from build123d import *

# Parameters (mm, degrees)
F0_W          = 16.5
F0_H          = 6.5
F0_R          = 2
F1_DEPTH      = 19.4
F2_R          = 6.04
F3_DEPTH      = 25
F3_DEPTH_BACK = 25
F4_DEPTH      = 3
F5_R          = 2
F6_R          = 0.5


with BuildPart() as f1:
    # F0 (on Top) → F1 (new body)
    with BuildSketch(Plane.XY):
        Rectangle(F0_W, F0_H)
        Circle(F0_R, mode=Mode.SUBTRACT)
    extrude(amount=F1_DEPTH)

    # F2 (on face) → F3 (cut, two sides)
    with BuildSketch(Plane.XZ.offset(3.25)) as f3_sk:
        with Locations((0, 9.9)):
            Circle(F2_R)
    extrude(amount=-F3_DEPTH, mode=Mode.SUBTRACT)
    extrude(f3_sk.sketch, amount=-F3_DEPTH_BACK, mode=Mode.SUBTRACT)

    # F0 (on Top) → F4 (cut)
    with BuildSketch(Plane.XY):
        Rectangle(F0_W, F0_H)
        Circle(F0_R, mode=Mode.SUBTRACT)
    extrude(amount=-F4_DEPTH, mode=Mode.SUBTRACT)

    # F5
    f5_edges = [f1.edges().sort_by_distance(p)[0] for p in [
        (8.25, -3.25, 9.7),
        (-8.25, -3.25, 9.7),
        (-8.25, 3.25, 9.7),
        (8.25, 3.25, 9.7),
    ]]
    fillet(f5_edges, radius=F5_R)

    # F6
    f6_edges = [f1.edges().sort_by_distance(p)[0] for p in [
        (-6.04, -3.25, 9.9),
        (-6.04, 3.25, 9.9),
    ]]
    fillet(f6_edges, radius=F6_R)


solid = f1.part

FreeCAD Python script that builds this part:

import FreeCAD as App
import Part
import Sketcher
Q = App.Units.Quantity


def edges_at(feature, points):
    """Names of the edges that pass closest to the given points."""
    edges = feature.Shape.Edges
    near = lambda p: min(range(len(edges)), key=lambda i: edges[i].distToShape(Part.Vertex(*p))[0])
    return sorted({f"Edge{near(p) + 1}" for p in points})

doc = App.newDocument("Part")
params = doc.addObject("Spreadsheet::Sheet", "Params")
for row, (alias, value) in enumerate([
    ("sketch1_diameter", "4 mm"),
    ("sketch1_width", "16.5 mm"),
    ("sketch1_height", "6.5 mm"),
    ("pad1_length", "19.4 mm"),
    ("sketch2_diameter", "12.08 mm"),
    ("pocket1_length", "25 mm"),
    ("pocket2_length", "25 mm"),
    ("sketch3_diameter", "4 mm"),
    ("sketch3_width", "16.5 mm"),
    ("sketch3_height", "6.5 mm"),
    ("pocket3_length", "3 mm"),
    ("fillet_radius", "2 mm"),
    ("fillet2_radius", "0.5 mm"),
], start=1):
    params.set(f"A{row}", alias)
    params.set(f"B{row}", "=" + value)
    params.setAlias(f"B{row}", alias)

body = doc.addObject("PartDesign::Body", "Body")

sketch1 = body.newObject("Sketcher::SketchObject", "Sketch")
sketch1.AttachmentSupport = (doc.getObject("XY_Plane"), [""])
sketch1.MapMode = "FlatFace"
sketch1.addGeometry(Part.LineSegment(App.Vector(-8.2, 3.2, 0), App.Vector(-8.2, -3.2, 0)), False)
sketch1.addGeometry(Part.LineSegment(App.Vector(-8.2, -3.2, 0), App.Vector(8.2, -3.2, 0)), False)
sketch1.addGeometry(Part.LineSegment(App.Vector(8.2, -3.2, 0), App.Vector(8.2, 3.2, 0)), False)
sketch1.addGeometry(Part.LineSegment(App.Vector(8.2, 3.2, 0), App.Vector(-8.2, 3.2, 0)), False)
sketch1.addGeometry(Part.Circle(App.Vector(0, 0, 0), App.Vector(0, 0, 1), 2), False)
sketch1.addConstraint(Sketcher.Constraint("Coincident", 0, 2, 1, 1))
sketch1.addConstraint(Sketcher.Constraint("Coincident", 1, 2, 2, 1))
sketch1.addConstraint(Sketcher.Constraint("Coincident", 2, 2, 3, 1))
sketch1.addConstraint(Sketcher.Constraint("Coincident", 3, 2, 0, 1))
sketch1.addConstraint(Sketcher.Constraint("Vertical", 0))
sketch1.addConstraint(Sketcher.Constraint("Horizontal", 1))
sketch1.addConstraint(Sketcher.Constraint("Vertical", 2))
sketch1.addConstraint(Sketcher.Constraint("Horizontal", 3))
sketch1.addConstraint(Sketcher.Constraint("Coincident", 4, 3, -1, 1))
sketch1.addConstraint(Sketcher.Constraint("Symmetric", 0, 2, 2, 2, -1, 1))
sketch1.addConstraint(Sketcher.Constraint("Diameter", 4, Q("4 mm")))
sketch1.addConstraint(Sketcher.Constraint("DistanceX", 1, 1, 1, 2, Q("16.5 mm")))
sketch1.addConstraint(Sketcher.Constraint("DistanceY", 0, 2, 0, 1, Q("6.5 mm")))
sketch1.setExpression("Constraints[10]", "Params.sketch1_diameter")
sketch1.setExpression("Constraints[11]", "Params.sketch1_width")
sketch1.setExpression("Constraints[12]", "Params.sketch1_height")
pad1 = body.newObject("PartDesign::Pad", "Pad")
pad1.Profile = sketch1
pad1.setExpression("Length", "Params.pad1_length")

sketch2 = body.newObject("Sketcher::SketchObject", "Sketch001")
sketch2.AttachmentSupport = (doc.getObject("XZ_Plane"), [""])
sketch2.MapMode = "FlatFace"
sketch2.AttachmentOffset = App.Placement(App.Vector(0, 0, 3.25), App.Rotation())
sketch2.addGeometry(Part.Circle(App.Vector(0, 10, 0), App.Vector(0, 0, 1), 6), False)
sketch2.addConstraint(Sketcher.Constraint("PointOnObject", 0, 3, -2))
sketch2.addConstraint(Sketcher.Constraint("Diameter", 0, Q("12.08 mm")))
sketch2.addConstraint(Sketcher.Constraint("DistanceY", -1, 1, 0, 3, Q("9.9 mm")))
sketch2.setExpression("Constraints[1]", "Params.sketch2_diameter")
pocket1 = body.newObject("PartDesign::Pocket", "Pocket")
pocket1.Profile = sketch2
pocket1.setExpression("Length", "Params.pocket1_length")
pocket2 = body.newObject("PartDesign::Pocket", "Pocket001")
pocket2.Profile = sketch2
pocket2.setExpression("Length", "Params.pocket2_length")

sketch3 = body.newObject("Sketcher::SketchObject", "Sketch002")
sketch3.AttachmentSupport = (doc.getObject("XY_Plane"), [""])
sketch3.MapMode = "FlatFace"
sketch3.addGeometry(Part.LineSegment(App.Vector(-8.2, 3.2, 0), App.Vector(-8.2, -3.2, 0)), False)
sketch3.addGeometry(Part.LineSegment(App.Vector(-8.2, -3.2, 0), App.Vector(8.2, -3.2, 0)), False)
sketch3.addGeometry(Part.LineSegment(App.Vector(8.2, -3.2, 0), App.Vector(8.2, 3.2, 0)), False)
sketch3.addGeometry(Part.LineSegment(App.Vector(8.2, 3.2, 0), App.Vector(-8.2, 3.2, 0)), False)
sketch3.addGeometry(Part.Circle(App.Vector(0, 0, 0), App.Vector(0, 0, 1), 2), False)
sketch3.addConstraint(Sketcher.Constraint("Coincident", 0, 2, 1, 1))
sketch3.addConstraint(Sketcher.Constraint("Coincident", 1, 2, 2, 1))
sketch3.addConstraint(Sketcher.Constraint("Coincident", 2, 2, 3, 1))
sketch3.addConstraint(Sketcher.Constraint("Coincident", 3, 2, 0, 1))
sketch3.addConstraint(Sketcher.Constraint("Vertical", 0))
sketch3.addConstraint(Sketcher.Constraint("Horizontal", 1))
sketch3.addConstraint(Sketcher.Constraint("Vertical", 2))
sketch3.addConstraint(Sketcher.Constraint("Horizontal", 3))
sketch3.addConstraint(Sketcher.Constraint("Coincident", 4, 3, -1, 1))
sketch3.addConstraint(Sketcher.Constraint("Symmetric", 0, 2, 2, 2, -1, 1))
sketch3.addConstraint(Sketcher.Constraint("Diameter", 4, Q("4 mm")))
sketch3.addConstraint(Sketcher.Constraint("DistanceX", 1, 1, 1, 2, Q("16.5 mm")))
sketch3.addConstraint(Sketcher.Constraint("DistanceY", 0, 2, 0, 1, Q("6.5 mm")))
sketch3.setExpression("Constraints[10]", "Params.sketch3_diameter")
sketch3.setExpression("Constraints[11]", "Params.sketch3_width")
sketch3.setExpression("Constraints[12]", "Params.sketch3_height")
pocket3 = body.newObject("PartDesign::Pocket", "Pocket002")
pocket3.Profile = sketch3
pocket3.setExpression("Length", "Params.pocket3_length")
doc.recompute()

fillet = body.newObject("PartDesign::Fillet", "Fillet")
fillet.Base = (pocket3, edges_at(pocket3, [
    (8.25, -3.25, 9.7),
    (-8.25, -3.25, 9.7),
    (-8.25, 3.25, 9.7),
    (8.25, 3.25, 9.7),
]))
fillet.setExpression("Radius", "Params.fillet_radius")
doc.recompute()

fillet2 = body.newObject("PartDesign::Fillet", "Fillet001")
fillet2.Base = (fillet, edges_at(fillet, [(-6.04, -3.25, 9.9), (-6.04, 3.25, 9.9)]))
fillet2.setExpression("Radius", "Params.fillet2_radius")

doc.recompute()
